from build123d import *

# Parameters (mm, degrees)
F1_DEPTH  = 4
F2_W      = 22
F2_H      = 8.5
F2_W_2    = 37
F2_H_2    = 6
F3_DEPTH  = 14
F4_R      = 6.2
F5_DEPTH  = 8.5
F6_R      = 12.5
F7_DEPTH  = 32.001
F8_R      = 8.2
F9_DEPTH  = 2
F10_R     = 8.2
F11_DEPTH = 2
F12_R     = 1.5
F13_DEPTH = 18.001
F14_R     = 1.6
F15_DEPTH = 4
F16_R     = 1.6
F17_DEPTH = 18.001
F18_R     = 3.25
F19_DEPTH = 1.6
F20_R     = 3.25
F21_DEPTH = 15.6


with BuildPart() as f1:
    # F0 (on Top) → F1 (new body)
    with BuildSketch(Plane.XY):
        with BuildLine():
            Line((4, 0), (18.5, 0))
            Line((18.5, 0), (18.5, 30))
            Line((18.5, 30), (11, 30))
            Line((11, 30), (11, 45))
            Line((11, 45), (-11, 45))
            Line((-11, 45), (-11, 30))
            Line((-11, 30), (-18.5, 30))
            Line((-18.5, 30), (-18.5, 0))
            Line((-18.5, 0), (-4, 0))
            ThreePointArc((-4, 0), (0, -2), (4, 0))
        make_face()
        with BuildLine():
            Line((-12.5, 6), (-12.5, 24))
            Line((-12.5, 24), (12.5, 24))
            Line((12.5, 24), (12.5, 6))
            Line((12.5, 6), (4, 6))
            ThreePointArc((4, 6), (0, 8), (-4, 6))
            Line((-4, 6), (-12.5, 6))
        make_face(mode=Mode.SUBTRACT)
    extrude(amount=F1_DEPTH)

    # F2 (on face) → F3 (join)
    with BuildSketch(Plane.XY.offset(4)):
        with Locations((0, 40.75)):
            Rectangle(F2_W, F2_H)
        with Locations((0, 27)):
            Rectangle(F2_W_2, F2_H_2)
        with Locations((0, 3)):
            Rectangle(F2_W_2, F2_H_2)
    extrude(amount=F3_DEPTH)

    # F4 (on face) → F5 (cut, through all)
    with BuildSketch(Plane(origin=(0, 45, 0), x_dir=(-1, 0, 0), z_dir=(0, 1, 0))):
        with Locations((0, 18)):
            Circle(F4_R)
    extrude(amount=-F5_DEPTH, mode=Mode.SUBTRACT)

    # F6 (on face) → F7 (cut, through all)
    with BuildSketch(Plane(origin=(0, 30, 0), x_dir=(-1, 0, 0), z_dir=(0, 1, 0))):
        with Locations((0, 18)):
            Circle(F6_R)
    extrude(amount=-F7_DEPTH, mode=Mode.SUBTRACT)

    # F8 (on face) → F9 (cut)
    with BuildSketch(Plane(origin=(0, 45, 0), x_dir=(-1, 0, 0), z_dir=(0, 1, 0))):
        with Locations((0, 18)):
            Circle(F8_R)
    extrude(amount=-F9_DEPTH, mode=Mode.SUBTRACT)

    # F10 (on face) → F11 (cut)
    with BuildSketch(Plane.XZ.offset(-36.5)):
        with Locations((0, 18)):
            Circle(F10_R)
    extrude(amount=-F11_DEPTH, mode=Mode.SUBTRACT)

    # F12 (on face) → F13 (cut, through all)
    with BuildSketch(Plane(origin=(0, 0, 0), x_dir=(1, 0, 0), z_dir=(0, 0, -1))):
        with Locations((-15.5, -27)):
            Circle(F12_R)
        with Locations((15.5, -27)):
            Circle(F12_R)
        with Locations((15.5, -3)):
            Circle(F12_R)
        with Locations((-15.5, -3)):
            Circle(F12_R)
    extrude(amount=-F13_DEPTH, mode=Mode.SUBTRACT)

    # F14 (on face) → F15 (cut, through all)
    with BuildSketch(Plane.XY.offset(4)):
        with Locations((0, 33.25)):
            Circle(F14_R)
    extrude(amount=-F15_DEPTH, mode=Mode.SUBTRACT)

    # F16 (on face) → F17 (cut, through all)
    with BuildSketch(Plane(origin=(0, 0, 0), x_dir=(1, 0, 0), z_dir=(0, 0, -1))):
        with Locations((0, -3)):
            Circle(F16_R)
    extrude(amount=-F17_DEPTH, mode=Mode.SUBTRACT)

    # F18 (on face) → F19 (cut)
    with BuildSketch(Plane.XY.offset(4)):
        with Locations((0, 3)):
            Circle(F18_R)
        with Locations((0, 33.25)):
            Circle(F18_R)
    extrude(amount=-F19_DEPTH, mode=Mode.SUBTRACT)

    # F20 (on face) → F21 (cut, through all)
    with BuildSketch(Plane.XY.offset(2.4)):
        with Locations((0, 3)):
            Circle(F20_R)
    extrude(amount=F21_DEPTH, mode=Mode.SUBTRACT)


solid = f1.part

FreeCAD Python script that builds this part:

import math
import FreeCAD as App
import Part
import Sketcher
from FreeCAD import Vector
Q = App.Units.Quantity


def add_polygon(sketch, points):
    """Adds a closed chain of lines whose ends are joined by coincident constraints."""
    first, n = sketch.GeometryCount, len(points)
    for a, b in zip(points, points[1:] + points[:1]):
        sketch.addGeometry(Part.LineSegment(App.Vector(*a, 0), App.Vector(*b, 0)), False)
    for i in range(n):
        sketch.addConstraint(Sketcher.Constraint("Coincident", first + i, 2, first + (i + 1) % n, 1))

doc = App.newDocument("Part")
body = doc.addObject("PartDesign::Body", "Body")

# Sketch on XY plane
sketch1 = body.newObject("Sketcher::SketchObject", "Sketch")
sketch1.AttachmentSupport = (doc.getObject("XY_Plane"), [""])
sketch1.MapMode = "FlatFace"
sketch1.addGeometry([
    Part.LineSegment(Vector(4, 0, 0), Vector(18, 0, 0)),  # 0
    Part.LineSegment(Vector(18, 0, 0), Vector(18, 30, 0)),  # 1
    Part.LineSegment(Vector(18, 30, 0), Vector(11, 30, 0)),  # 2
    Part.LineSegment(Vector(11, 30, 0), Vector(11, 45, 0)),  # 3
    Part.LineSegment(Vector(11, 45, 0), Vector(-11, 45, 0)),  # 4
    Part.LineSegment(Vector(-11, 45, 0), Vector(-11, 30, 0)),  # 5
    Part.LineSegment(Vector(-11, 30, 0), Vector(-18, 30, 0)),  # 6
    Part.LineSegment(Vector(-18, 30, 0), Vector(-18, 0, 0)),  # 7
    Part.LineSegment(Vector(-18, 0, 0), Vector(-4, 0, 0)),  # 8
    Part.ArcOfCircle(Part.Circle(Vector(0, 3, 0), Vector(0, 0, 1), 5), math.radians(-143), math.radians(-37)),  # 9
    Part.LineSegment(Vector(-4, 6, 0), Vector(-12, 6, 0)),  # 10
    Part.LineSegment(Vector(-12, 6, 0), Vector(-12, 24, 0)),  # 11
    Part.LineSegment(Vector(-12, 24, 0), Vector(12, 24, 0)),  # 12
    Part.LineSegment(Vector(12, 24, 0), Vector(12, 6, 0)),  # 13
    Part.LineSegment(Vector(12, 6, 0), Vector(4, 6, 0)),  # 14
    Part.ArcOfCircle(Part.Circle(Vector(0, 3, 0), Vector(0, 0, 1), 5), math.radians(37), math.radians(143)),  # 15
], False)
sketch1.addConstraint([
    Sketcher.Constraint("Coincident", 0, 2, 1, 1),
    Sketcher.Constraint("Coincident", 1, 2, 2, 1),
    Sketcher.Constraint("Coincident", 2, 2, 3, 1),
    Sketcher.Constraint("Coincident", 3, 2, 4, 1),
    Sketcher.Constraint("Coincident", 4, 2, 5, 1),
    Sketcher.Constraint("Coincident", 5, 2, 6, 1),
    Sketcher.Constraint("Coincident", 6, 2, 7, 1),
    Sketcher.Constraint("Coincident", 7, 2, 8, 1),
    Sketcher.Constraint("Coincident", 8, 2, 9, 1),
    Sketcher.Constraint("Coincident", 9, 2, 0, 1),
    Sketcher.Constraint("Coincident", 10, 2, 11, 1),
    Sketcher.Constraint("Coincident", 11, 2, 12, 1),
    Sketcher.Constraint("Coincident", 12, 2, 13, 1),
    Sketcher.Constraint("Coincident", 13, 2, 14, 1),
    Sketcher.Constraint("Coincident", 14, 2, 15, 1),
    Sketcher.Constraint("Coincident", 15, 2, 10, 1),
    Sketcher.Constraint("Horizontal", 0),
    Sketcher.Constraint("Vertical", 1),
    Sketcher.Constraint("Horizontal", 2),
    Sketcher.Constraint("Vertical", 3),
    Sketcher.Constraint("Horizontal", 4),
    Sketcher.Constraint("Vertical", 5),
    Sketcher.Constraint("Horizontal", 6),
    Sketcher.Constraint("Vertical", 7),
    Sketcher.Constraint("Horizontal", 8),
    Sketcher.Constraint("Horizontal", 10),
    Sketcher.Constraint("Vertical", 11),
    Sketcher.Constraint("Horizontal", 12),
    Sketcher.Constraint("Vertical", 13),
    Sketcher.Constraint("Horizontal", 14),
    Sketcher.Constraint("Coincident", 15, 3, 9, 3),
    Sketcher.Constraint("Equal", 9, 15),
    Sketcher.Constraint("Symmetric", 0, 2, 7, 2, -1, 1),
    Sketcher.Constraint("Symmetric", 2, 2, 5, 2, -2),
    Sketcher.Constraint("Symmetric", 8, 2, 9, 2, -2),
    Sketcher.Constraint("Symmetric", 10, 2, 13, 2, -2),
    Sketcher.Constraint("Vertical", 9, 2, 14, 2),
    Sketcher.Constraint("Radius", 9, Q("5 mm")),
    Sketcher.Constraint("DistanceX", 4, 2, 4, 1, Q("22 mm")),
    Sketcher.Constraint("DistanceX", 12, 1, 12, 2, Q("25 mm")),
    Sketcher.Constraint("DistanceY", 1, 1, 1, 2, Q("30 mm")),
    Sketcher.Constraint("DistanceY", 3, 1, 3, 2, Q("15 mm")),
    Sketcher.Constraint("DistanceY", 11, 1, 11, 2, Q("18 mm")),
    Sketcher.Constraint("DistanceX", 0, 1, 0, 2, Q("14.5 mm")),
    Sketcher.Constraint("DistanceX", 2, 2, 2, 1, Q("7.5 mm")),
])
pad1 = body.newObject("PartDesign::Pad", "Pad")
pad1.Profile = sketch1
pad1.Length = 4

# Sketch on XY plane
sketch2 = body.newObject("Sketcher::SketchObject", "Sketch001")
sketch2.AttachmentSupport = (doc.getObject("XY_Plane"), [""])
sketch2.MapMode = "FlatFace"
sketch2.AttachmentOffset = App.Placement(Vector(0, 0, 4), App.Rotation())
add_polygon(sketch2, [(-11, 45), (-11, 36), (11, 36), (11, 45)])  # lines 0-3
add_polygon(sketch2, [(-18, 30), (-18, 24), (18, 24), (18, 30)])  # lines 4-7
add_polygon(sketch2, [(-18, 6), (-18, 0), (18, 0), (18, 6)])  # lines 8-11
sketch2.addConstraint([
    Sketcher.Constraint("Vertical", 0),
    Sketcher.Constraint("Horizontal", 1),
    Sketcher.Constraint("Vertical", 2),
    Sketcher.Constraint("Horizontal", 3),
    Sketcher.Constraint("Vertical", 4),
    Sketcher.Constraint("Horizontal", 5),
    Sketcher.Constraint("Vertical", 6),
    Sketcher.Constraint("Horizontal", 7),
    Sketcher.Constraint("Vertical", 8),
    Sketcher.Constraint("Horizontal", 9),
    Sketcher.Constraint("Vertical", 10),
    Sketcher.Constraint("Horizontal", 11),
    Sketcher.Constraint("Symmetric", 8, 2, 9, 2, -1, 1),
    Sketcher.Constraint("Vertical", 7, 2, 8, 2),
    Sketcher.Constraint("Vertical", 6, 2, 9, 2),
    Sketcher.Constraint("Equal", 6, 8),
    Sketcher.Constraint("DistanceX", 1, 1, 1, 2, Q("22 mm")),
    Sketcher.Constraint("DistanceX", 5, 1, 5, 2, Q("37 mm")),
    Sketcher.Constraint("DistanceY", 4, 2, 4, 1, Q("6 mm")),
    Sketcher.Constraint("DistanceY", 0, 2, 0, 1, Q("8.5 mm")),
    Sketcher.Constraint("DistanceX", 0, 2, -1, 1, Q("11 mm")),
    Sketcher.Constraint("DistanceY", -1, 1, 2, 2, Q("45 mm")),
    Sketcher.Constraint("DistanceY", -1, 1, 4, 2, Q("24 mm")),
])
pad2 = body.newObject("PartDesign::Pad", "Pad001")
pad2.Profile = sketch2
pad2.Length = 14

# Sketch on XZ plane
sketch3 = body.newObject("Sketcher::SketchObject", "Sketch002")
sketch3.AttachmentSupport = (doc.getObject("XZ_Plane"), [""])
sketch3.MapMode = "FlatFace"
sketch3.AttachmentOffset = App.Placement(Vector(0, 0, -45), App.Rotation())
sketch3.addGeometry(Part.Circle(Vector(0, 18, 0), Vector(0, 0, 1), 6), False)
sketch3.addConstraint([
    Sketcher.Constraint("PointOnObject", 0, 3, -2),
    Sketcher.Constraint("Diameter", 0, Q("12.4 mm")),
    Sketcher.Constraint("DistanceY", -1, 1, 0, 3, Q("18 mm")),
])
pocket1 = body.newObject("PartDesign::Pocket", "Pocket")
pocket1.Profile = sketch3
pocket1.Length = 8.5
pocket1.Reversed = True

# Sketch on XZ plane
sketch4 = body.newObject("Sketcher::SketchObject", "Sketch003")
sketch4.AttachmentSupport = (doc.getObject("XZ_Plane"), [""])
sketch4.MapMode = "FlatFace"
sketch4.AttachmentOffset = App.Placement(Vector(0, 0, -30), App.Rotation())
sketch4.addGeometry(Part.Circle(Vector(0, 18, 0), Vector(0, 0, 1), 12), False)
sketch4.addConstraint([
    Sketcher.Constraint("PointOnObject", 0, 3, -2),
    Sketcher.Constraint("Diameter", 0, Q("25 mm")),
    Sketcher.Constraint("DistanceY", -1, 1, 0, 3, Q("18 mm")),
])
pocket2 = body.newObject("PartDesign::Pocket", "Pocket001")
pocket2.Profile = sketch4
pocket2.Type = "ThroughAll"
pocket2.Reversed = True

# Sketch on XZ plane
sketch5 = body.newObject("Sketcher::SketchObject", "Sketch004")
sketch5.AttachmentSupport = (doc.getObject("XZ_Plane"), [""])
sketch5.MapMode = "FlatFace"
sketch5.AttachmentOffset = App.Placement(Vector(0, 0, -45), App.Rotation())
sketch5.addGeometry(Part.Circle(Vector(0, 18, 0), Vector(0, 0, 1), 8), False)
sketch5.addConstraint([
    Sketcher.Constraint("PointOnObject", 0, 3, -2),
    Sketcher.Constraint("Diameter", 0, Q("16.4 mm")),
    Sketcher.Constraint("DistanceY", -1, 1, 0, 3, Q("18 mm")),
])
pocket3 = body.newObject("PartDesign::Pocket", "Pocket002")
pocket3.Profile = sketch5
pocket3.Length = 2
pocket3.Reversed = True

# Sketch on XZ plane
sketch6 = body.newObject("Sketcher::SketchObject", "Sketch005")
sketch6.AttachmentSupport = (doc.getObject("XZ_Plane"), [""])
sketch6.MapMode = "FlatFace"
sketch6.AttachmentOffset = App.Placement(Vector(0, 0, -36.5), App.Rotation())
sketch6.addGeometry(Part.Circle(Vector(0, 18, 0), Vector(0, 0, 1), 8), False)
sketch6.addConstraint([
    Sketcher.Constraint("PointOnObject", 0, 3, -2),
    Sketcher.Constraint("Diameter", 0, Q("16.4 mm")),
    Sketcher.Constraint("DistanceY", -1, 1, 0, 3, Q("18 mm")),
])
pocket4 = body.newObject("PartDesign::Pocket", "Pocket003")
pocket4.Profile = sketch6
pocket4.Length = 2

# Sketch on XY plane
sketch7 = body.newObject("Sketcher::SketchObject", "Sketch006")
sketch7.AttachmentSupport = (doc.getObject("XY_Plane"), [""])
sketch7.MapMode = "FlatFace"
sketch7.addGeometry([
    Part.Circle(Vector(-15.5, 27, 0), Vector(0, 0, 1), 1.5),
    Part.Circle(Vector(15.5, 27, 0), Vector(0, 0, 1), 1.5),
    Part.Circle(Vector(15.5, 3, 0), Vector(0, 0, 1), 1.5),
    Part.Circle(Vector(-15.5, 3, 0), Vector(0, 0, 1), 1.5),
], False)
sketch7.addConstraint([
    Sketcher.Constraint("Equal", 0, 1),
    Sketcher.Constraint("Equal", 1, 2),
    Sketcher.Constraint("Equal", 2, 3),
    Sketcher.Constraint("Symmetric", 0, 3, 1, 3, -2),
    Sketcher.Constraint("Symmetric", 2, 3, 3, 3, -2),
    Sketcher.Constraint("Vertical", 1, 3, 2, 3),
    Sketcher.Constraint("Diameter", 0, Q("3 mm")),
    Sketcher.Constraint("DistanceY", -1, 1, 0, 3, Q("27 mm")),
    Sketcher.Constraint("DistanceY", -1, 1, 2, 3, Q("3 mm")),
    Sketcher.Constraint("DistanceX", 0, 3, 1, 3, Q("31 mm")),
])
pocket5 = body.newObject("PartDesign::Pocket", "Pocket004")
pocket5.Profile = sketch7
pocket5.Type = "ThroughAll"
pocket5.Reversed = True

# Sketch on XY plane
sketch8 = body.newObject("Sketcher::SketchObject", "Sketch007")
sketch8.AttachmentSupport = (doc.getObject("XY_Plane"), [""])
sketch8.MapMode = "FlatFace"
sketch8.AttachmentOffset = App.Placement(Vector(0, 0, 4), App.Rotation())
sketch8.addGeometry(Part.Circle(Vector(0, 33.2, 0), Vector(0, 0, 1), 1.6), False)
sketch8.addConstraint([
    Sketcher.Constraint("PointOnObject", 0, 3, -2),
    Sketcher.Constraint("Diameter", 0, Q("3.2 mm")),
    Sketcher.Constraint("DistanceY", -1, 1, 0, 3, Q("33.25 mm")),
])
pocket6 = body.newObject("PartDesign::Pocket", "Pocket005")
pocket6.Profile = sketch8
pocket6.Type = "ThroughAll"

# Sketch on XY plane
sketch9 = body.newObject("Sketcher::SketchObject", "Sketch008")
sketch9.AttachmentSupport = (doc.getObject("XY_Plane"), [""])
sketch9.MapMode = "FlatFace"
sketch9.addGeometry(Part.Circle(Vector(0, 3, 0), Vector(0, 0, 1), 1.6), False)
sketch9.addConstraint([
    Sketcher.Constraint("PointOnObject", 0, 3, -2),
    Sketcher.Constraint("Diameter", 0, Q("3.2 mm")),
    Sketcher.Constraint("DistanceY", -1, 1, 0, 3, Q("3 mm")),
])
pocket7 = body.newObject("PartDesign::Pocket", "Pocket006")
pocket7.Profile = sketch9
pocket7.Type = "ThroughAll"
pocket7.Reversed = True

# Sketch on XY plane
sketch10 = body.newObject("Sketcher::SketchObject", "Sketch009")
sketch10.AttachmentSupport = (doc.getObject("XY_Plane"), [""])
sketch10.MapMode = "FlatFace"
sketch10.AttachmentOffset = App.Placement(Vector(0, 0, 4), App.Rotation())
sketch10.addGeometry([
    Part.Circle(Vector(0, 3, 0), Vector(0, 0, 1), 3.2),
    Part.Circle(Vector(0, 33.2, 0), Vector(0, 0, 1), 3.2),
], False)
sketch10.addConstraint([
    Sketcher.Constraint("Equal", 0, 1),
    Sketcher.Constraint("PointOnObject", 0, 3, -2),
    Sketcher.Constraint("PointOnObject", 1, 3, -2),
    Sketcher.Constraint("Diameter", 0, Q("6.5 mm")),
    Sketcher.Constraint("DistanceY", -1, 1, 0, 3, Q("3 mm")),
    Sketcher.Constraint("DistanceY", -1, 1, 1, 3, Q("33.25 mm")),
])
pocket8 = body.newObject("PartDesign::Pocket", "Pocket007")
pocket8.Profile = sketch10
pocket8.Length = 1.6

# Sketch on XY plane
sketch11 = body.newObject("Sketcher::SketchObject", "Sketch010")
sketch11.AttachmentSupport = (doc.getObject("XY_Plane"), [""])
sketch11.MapMode = "FlatFace"
sketch11.AttachmentOffset = App.Placement(Vector(0, 0, 2.4), App.Rotation())
sketch11.addGeometry(Part.Circle(Vector(0, 3, 0), Vector(0, 0, 1), 3.2), False)
sketch11.addConstraint([
    Sketcher.Constraint("PointOnObject", 0, 3, -2),
    Sketcher.Constraint("Diameter", 0, Q("6.5 mm")),
    Sketcher.Constraint("DistanceY", -1, 1, 0, 3, Q("3 mm")),
])
pocket9 = body.newObject("PartDesign::Pocket", "Pocket008")
pocket9.Profile = sketch11
pocket9.Type = "ThroughAll"
pocket9.Reversed = True

doc.recompute()
